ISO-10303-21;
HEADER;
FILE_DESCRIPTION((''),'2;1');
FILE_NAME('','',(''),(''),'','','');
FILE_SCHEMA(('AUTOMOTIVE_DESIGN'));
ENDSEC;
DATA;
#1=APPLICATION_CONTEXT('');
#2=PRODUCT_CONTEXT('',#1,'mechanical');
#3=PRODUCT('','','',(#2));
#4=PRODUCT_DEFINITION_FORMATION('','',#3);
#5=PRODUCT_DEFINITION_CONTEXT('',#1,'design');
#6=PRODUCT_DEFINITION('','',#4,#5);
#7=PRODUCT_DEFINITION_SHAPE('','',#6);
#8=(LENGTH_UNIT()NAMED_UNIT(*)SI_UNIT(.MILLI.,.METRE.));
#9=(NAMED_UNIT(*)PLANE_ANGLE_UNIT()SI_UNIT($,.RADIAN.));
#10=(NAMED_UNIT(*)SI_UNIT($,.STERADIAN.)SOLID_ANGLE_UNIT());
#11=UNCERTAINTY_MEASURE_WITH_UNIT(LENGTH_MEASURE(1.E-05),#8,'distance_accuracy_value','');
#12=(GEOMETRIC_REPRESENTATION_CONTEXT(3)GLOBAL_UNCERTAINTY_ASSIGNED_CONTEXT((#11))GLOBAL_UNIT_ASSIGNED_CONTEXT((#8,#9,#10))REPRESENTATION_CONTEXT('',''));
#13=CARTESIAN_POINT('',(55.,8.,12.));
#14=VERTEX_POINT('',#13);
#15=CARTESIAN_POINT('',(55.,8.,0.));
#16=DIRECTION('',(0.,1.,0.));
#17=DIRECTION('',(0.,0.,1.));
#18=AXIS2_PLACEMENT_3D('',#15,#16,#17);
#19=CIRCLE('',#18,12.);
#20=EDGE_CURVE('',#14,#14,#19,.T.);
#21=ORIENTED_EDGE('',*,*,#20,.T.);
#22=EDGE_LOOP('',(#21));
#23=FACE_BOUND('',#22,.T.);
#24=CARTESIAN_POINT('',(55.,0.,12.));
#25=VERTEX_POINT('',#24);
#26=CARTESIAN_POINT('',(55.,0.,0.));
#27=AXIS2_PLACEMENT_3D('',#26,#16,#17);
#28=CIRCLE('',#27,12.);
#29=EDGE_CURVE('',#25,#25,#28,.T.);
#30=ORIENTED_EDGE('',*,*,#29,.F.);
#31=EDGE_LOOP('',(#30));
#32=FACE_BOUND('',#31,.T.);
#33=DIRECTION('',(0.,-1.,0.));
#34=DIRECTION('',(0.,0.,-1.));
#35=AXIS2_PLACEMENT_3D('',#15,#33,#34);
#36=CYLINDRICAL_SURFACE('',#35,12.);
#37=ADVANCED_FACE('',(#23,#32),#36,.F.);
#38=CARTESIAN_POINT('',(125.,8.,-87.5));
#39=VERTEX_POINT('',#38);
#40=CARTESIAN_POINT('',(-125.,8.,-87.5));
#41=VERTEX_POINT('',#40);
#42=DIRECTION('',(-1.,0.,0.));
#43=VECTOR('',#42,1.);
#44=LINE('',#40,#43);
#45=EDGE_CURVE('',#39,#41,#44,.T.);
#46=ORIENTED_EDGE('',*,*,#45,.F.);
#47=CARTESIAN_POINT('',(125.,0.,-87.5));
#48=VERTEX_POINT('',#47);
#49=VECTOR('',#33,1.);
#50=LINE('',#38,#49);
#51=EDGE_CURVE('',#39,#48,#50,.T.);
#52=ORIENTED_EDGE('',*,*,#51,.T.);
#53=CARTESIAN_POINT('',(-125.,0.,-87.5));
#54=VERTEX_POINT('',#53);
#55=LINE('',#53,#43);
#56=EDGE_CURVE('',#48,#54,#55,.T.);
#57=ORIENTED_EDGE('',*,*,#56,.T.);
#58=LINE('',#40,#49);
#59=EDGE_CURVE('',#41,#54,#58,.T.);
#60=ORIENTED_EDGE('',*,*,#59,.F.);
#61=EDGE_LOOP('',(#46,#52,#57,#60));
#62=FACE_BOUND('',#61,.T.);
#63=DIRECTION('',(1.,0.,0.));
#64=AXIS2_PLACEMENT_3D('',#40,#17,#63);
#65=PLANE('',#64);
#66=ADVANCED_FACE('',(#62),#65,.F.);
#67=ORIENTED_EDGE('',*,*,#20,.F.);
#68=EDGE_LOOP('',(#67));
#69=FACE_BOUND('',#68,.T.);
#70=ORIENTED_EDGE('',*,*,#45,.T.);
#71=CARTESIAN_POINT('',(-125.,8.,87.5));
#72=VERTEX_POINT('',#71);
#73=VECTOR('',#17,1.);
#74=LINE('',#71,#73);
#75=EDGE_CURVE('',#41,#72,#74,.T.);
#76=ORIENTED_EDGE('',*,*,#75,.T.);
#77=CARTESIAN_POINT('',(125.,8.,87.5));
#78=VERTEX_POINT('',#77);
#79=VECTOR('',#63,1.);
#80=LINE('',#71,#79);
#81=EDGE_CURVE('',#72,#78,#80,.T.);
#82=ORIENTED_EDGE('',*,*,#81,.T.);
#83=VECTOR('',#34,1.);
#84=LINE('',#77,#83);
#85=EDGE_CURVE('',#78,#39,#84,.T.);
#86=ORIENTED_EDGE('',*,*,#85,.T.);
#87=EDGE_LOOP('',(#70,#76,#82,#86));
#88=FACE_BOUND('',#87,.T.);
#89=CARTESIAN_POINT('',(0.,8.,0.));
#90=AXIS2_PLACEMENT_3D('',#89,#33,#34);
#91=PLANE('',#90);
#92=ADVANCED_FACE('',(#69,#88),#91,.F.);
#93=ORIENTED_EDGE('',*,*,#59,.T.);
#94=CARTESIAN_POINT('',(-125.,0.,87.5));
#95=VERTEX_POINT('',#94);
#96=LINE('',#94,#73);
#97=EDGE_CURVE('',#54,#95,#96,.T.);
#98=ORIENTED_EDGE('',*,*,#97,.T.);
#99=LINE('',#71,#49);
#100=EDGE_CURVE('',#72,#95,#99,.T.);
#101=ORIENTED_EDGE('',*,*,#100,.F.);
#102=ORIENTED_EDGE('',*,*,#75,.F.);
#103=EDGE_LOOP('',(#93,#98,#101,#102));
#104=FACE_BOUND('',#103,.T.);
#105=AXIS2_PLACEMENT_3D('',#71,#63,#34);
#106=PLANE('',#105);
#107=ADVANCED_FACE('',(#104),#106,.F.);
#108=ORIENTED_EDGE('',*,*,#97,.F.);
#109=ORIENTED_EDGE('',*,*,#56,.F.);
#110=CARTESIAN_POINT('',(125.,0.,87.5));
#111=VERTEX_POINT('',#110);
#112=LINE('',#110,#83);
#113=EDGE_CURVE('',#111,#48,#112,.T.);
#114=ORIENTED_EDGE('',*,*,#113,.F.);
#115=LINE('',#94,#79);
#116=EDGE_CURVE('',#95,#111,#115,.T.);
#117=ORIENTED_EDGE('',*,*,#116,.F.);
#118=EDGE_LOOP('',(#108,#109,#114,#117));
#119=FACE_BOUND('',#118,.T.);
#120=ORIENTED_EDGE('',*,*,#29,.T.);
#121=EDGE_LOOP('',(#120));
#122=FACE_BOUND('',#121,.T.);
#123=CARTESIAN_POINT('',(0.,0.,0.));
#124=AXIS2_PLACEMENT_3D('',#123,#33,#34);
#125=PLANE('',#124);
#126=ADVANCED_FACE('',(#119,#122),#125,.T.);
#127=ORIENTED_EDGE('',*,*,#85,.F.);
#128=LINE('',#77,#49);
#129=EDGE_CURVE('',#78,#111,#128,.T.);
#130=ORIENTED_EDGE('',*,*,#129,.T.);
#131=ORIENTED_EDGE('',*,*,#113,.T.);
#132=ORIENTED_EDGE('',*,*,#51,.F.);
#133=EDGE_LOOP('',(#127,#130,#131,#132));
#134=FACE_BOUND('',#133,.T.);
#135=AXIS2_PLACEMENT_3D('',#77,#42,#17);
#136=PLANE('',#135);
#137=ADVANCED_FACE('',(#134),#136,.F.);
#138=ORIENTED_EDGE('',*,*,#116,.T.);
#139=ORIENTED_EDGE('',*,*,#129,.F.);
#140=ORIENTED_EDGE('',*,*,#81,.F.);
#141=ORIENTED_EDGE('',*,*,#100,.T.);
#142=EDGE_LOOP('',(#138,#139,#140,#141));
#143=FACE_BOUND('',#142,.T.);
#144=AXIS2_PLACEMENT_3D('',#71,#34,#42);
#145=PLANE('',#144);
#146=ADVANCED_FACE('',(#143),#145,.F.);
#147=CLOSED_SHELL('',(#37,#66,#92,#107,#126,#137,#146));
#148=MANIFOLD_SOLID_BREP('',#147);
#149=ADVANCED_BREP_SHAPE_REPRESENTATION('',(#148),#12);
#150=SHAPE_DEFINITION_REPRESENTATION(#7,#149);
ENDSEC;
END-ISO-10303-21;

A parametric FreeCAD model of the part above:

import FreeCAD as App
import Part
import Sketcher

V = App.Vector

doc = App.newDocument("Part")
body = doc.addObject("PartDesign::Body", "Body")

sketch1 = doc.addObject("Sketcher::SketchObject", "Sketch")
body.addObject(sketch1)
sketch1.AttachmentSupport = (doc.XZ_Plane, [""])
sketch1.MapMode = "FlatFace"
sketch1.addGeometry(Part.LineSegment(V(-125, -87.5, 0), V(-125, 87.5, 0)), False)
sketch1.addGeometry(Part.LineSegment(V(-125, 87.5, 0), V(125, 87.5, 0)), False)
sketch1.addGeometry(Part.LineSegment(V(125, 87.5, 0), V(125, -87.5, 0)), False)
sketch1.addGeometry(Part.LineSegment(V(125, -87.5, 0), V(-125, -87.5, 0)), False)
sketch1.addGeometry(Part.Circle(V(55, 0, 0), V(0, 0, 1), 12), False)
sketch1.addConstraint(Sketcher.Constraint("Coincident", 0, 2, 1, 1))
sketch1.addConstraint(Sketcher.Constraint("Coincident", 1, 2, 2, 1))
sketch1.addConstraint(Sketcher.Constraint("Coincident", 2, 2, 3, 1))
sketch1.addConstraint(Sketcher.Constraint("Coincident", 3, 2, 0, 1))
sketch1.addConstraint(Sketcher.Constraint("Vertical", 0))
sketch1.addConstraint(Sketcher.Constraint("Horizontal", 1))
sketch1.addConstraint(Sketcher.Constraint("Vertical", 2))
sketch1.addConstraint(Sketcher.Constraint("Horizontal", 3))
sketch1.addConstraint(Sketcher.Constraint("Symmetric", 0, 2, 2, 2, -1, 1))
sketch1.addConstraint(Sketcher.Constraint("PointOnObject", 4, 3, -1))
sketch1.addConstraint(Sketcher.Constraint("Diameter", 4, 24.0))
sketch1.addConstraint(Sketcher.Constraint("DistanceX", 1, 1, 1, 2, 250.0))
sketch1.addConstraint(Sketcher.Constraint("DistanceY", 0, 1, 0, 2, 175.0))
sketch1.addConstraint(Sketcher.Constraint("DistanceX", -1, 1, 4, 3, 55.0))
pad1 = doc.addObject("PartDesign::Pad", "Pad")
body.addObject(pad1)
pad1.Profile = sketch1
pad1.Length = 8
pad1.Reversed = True

doc.recompute()
